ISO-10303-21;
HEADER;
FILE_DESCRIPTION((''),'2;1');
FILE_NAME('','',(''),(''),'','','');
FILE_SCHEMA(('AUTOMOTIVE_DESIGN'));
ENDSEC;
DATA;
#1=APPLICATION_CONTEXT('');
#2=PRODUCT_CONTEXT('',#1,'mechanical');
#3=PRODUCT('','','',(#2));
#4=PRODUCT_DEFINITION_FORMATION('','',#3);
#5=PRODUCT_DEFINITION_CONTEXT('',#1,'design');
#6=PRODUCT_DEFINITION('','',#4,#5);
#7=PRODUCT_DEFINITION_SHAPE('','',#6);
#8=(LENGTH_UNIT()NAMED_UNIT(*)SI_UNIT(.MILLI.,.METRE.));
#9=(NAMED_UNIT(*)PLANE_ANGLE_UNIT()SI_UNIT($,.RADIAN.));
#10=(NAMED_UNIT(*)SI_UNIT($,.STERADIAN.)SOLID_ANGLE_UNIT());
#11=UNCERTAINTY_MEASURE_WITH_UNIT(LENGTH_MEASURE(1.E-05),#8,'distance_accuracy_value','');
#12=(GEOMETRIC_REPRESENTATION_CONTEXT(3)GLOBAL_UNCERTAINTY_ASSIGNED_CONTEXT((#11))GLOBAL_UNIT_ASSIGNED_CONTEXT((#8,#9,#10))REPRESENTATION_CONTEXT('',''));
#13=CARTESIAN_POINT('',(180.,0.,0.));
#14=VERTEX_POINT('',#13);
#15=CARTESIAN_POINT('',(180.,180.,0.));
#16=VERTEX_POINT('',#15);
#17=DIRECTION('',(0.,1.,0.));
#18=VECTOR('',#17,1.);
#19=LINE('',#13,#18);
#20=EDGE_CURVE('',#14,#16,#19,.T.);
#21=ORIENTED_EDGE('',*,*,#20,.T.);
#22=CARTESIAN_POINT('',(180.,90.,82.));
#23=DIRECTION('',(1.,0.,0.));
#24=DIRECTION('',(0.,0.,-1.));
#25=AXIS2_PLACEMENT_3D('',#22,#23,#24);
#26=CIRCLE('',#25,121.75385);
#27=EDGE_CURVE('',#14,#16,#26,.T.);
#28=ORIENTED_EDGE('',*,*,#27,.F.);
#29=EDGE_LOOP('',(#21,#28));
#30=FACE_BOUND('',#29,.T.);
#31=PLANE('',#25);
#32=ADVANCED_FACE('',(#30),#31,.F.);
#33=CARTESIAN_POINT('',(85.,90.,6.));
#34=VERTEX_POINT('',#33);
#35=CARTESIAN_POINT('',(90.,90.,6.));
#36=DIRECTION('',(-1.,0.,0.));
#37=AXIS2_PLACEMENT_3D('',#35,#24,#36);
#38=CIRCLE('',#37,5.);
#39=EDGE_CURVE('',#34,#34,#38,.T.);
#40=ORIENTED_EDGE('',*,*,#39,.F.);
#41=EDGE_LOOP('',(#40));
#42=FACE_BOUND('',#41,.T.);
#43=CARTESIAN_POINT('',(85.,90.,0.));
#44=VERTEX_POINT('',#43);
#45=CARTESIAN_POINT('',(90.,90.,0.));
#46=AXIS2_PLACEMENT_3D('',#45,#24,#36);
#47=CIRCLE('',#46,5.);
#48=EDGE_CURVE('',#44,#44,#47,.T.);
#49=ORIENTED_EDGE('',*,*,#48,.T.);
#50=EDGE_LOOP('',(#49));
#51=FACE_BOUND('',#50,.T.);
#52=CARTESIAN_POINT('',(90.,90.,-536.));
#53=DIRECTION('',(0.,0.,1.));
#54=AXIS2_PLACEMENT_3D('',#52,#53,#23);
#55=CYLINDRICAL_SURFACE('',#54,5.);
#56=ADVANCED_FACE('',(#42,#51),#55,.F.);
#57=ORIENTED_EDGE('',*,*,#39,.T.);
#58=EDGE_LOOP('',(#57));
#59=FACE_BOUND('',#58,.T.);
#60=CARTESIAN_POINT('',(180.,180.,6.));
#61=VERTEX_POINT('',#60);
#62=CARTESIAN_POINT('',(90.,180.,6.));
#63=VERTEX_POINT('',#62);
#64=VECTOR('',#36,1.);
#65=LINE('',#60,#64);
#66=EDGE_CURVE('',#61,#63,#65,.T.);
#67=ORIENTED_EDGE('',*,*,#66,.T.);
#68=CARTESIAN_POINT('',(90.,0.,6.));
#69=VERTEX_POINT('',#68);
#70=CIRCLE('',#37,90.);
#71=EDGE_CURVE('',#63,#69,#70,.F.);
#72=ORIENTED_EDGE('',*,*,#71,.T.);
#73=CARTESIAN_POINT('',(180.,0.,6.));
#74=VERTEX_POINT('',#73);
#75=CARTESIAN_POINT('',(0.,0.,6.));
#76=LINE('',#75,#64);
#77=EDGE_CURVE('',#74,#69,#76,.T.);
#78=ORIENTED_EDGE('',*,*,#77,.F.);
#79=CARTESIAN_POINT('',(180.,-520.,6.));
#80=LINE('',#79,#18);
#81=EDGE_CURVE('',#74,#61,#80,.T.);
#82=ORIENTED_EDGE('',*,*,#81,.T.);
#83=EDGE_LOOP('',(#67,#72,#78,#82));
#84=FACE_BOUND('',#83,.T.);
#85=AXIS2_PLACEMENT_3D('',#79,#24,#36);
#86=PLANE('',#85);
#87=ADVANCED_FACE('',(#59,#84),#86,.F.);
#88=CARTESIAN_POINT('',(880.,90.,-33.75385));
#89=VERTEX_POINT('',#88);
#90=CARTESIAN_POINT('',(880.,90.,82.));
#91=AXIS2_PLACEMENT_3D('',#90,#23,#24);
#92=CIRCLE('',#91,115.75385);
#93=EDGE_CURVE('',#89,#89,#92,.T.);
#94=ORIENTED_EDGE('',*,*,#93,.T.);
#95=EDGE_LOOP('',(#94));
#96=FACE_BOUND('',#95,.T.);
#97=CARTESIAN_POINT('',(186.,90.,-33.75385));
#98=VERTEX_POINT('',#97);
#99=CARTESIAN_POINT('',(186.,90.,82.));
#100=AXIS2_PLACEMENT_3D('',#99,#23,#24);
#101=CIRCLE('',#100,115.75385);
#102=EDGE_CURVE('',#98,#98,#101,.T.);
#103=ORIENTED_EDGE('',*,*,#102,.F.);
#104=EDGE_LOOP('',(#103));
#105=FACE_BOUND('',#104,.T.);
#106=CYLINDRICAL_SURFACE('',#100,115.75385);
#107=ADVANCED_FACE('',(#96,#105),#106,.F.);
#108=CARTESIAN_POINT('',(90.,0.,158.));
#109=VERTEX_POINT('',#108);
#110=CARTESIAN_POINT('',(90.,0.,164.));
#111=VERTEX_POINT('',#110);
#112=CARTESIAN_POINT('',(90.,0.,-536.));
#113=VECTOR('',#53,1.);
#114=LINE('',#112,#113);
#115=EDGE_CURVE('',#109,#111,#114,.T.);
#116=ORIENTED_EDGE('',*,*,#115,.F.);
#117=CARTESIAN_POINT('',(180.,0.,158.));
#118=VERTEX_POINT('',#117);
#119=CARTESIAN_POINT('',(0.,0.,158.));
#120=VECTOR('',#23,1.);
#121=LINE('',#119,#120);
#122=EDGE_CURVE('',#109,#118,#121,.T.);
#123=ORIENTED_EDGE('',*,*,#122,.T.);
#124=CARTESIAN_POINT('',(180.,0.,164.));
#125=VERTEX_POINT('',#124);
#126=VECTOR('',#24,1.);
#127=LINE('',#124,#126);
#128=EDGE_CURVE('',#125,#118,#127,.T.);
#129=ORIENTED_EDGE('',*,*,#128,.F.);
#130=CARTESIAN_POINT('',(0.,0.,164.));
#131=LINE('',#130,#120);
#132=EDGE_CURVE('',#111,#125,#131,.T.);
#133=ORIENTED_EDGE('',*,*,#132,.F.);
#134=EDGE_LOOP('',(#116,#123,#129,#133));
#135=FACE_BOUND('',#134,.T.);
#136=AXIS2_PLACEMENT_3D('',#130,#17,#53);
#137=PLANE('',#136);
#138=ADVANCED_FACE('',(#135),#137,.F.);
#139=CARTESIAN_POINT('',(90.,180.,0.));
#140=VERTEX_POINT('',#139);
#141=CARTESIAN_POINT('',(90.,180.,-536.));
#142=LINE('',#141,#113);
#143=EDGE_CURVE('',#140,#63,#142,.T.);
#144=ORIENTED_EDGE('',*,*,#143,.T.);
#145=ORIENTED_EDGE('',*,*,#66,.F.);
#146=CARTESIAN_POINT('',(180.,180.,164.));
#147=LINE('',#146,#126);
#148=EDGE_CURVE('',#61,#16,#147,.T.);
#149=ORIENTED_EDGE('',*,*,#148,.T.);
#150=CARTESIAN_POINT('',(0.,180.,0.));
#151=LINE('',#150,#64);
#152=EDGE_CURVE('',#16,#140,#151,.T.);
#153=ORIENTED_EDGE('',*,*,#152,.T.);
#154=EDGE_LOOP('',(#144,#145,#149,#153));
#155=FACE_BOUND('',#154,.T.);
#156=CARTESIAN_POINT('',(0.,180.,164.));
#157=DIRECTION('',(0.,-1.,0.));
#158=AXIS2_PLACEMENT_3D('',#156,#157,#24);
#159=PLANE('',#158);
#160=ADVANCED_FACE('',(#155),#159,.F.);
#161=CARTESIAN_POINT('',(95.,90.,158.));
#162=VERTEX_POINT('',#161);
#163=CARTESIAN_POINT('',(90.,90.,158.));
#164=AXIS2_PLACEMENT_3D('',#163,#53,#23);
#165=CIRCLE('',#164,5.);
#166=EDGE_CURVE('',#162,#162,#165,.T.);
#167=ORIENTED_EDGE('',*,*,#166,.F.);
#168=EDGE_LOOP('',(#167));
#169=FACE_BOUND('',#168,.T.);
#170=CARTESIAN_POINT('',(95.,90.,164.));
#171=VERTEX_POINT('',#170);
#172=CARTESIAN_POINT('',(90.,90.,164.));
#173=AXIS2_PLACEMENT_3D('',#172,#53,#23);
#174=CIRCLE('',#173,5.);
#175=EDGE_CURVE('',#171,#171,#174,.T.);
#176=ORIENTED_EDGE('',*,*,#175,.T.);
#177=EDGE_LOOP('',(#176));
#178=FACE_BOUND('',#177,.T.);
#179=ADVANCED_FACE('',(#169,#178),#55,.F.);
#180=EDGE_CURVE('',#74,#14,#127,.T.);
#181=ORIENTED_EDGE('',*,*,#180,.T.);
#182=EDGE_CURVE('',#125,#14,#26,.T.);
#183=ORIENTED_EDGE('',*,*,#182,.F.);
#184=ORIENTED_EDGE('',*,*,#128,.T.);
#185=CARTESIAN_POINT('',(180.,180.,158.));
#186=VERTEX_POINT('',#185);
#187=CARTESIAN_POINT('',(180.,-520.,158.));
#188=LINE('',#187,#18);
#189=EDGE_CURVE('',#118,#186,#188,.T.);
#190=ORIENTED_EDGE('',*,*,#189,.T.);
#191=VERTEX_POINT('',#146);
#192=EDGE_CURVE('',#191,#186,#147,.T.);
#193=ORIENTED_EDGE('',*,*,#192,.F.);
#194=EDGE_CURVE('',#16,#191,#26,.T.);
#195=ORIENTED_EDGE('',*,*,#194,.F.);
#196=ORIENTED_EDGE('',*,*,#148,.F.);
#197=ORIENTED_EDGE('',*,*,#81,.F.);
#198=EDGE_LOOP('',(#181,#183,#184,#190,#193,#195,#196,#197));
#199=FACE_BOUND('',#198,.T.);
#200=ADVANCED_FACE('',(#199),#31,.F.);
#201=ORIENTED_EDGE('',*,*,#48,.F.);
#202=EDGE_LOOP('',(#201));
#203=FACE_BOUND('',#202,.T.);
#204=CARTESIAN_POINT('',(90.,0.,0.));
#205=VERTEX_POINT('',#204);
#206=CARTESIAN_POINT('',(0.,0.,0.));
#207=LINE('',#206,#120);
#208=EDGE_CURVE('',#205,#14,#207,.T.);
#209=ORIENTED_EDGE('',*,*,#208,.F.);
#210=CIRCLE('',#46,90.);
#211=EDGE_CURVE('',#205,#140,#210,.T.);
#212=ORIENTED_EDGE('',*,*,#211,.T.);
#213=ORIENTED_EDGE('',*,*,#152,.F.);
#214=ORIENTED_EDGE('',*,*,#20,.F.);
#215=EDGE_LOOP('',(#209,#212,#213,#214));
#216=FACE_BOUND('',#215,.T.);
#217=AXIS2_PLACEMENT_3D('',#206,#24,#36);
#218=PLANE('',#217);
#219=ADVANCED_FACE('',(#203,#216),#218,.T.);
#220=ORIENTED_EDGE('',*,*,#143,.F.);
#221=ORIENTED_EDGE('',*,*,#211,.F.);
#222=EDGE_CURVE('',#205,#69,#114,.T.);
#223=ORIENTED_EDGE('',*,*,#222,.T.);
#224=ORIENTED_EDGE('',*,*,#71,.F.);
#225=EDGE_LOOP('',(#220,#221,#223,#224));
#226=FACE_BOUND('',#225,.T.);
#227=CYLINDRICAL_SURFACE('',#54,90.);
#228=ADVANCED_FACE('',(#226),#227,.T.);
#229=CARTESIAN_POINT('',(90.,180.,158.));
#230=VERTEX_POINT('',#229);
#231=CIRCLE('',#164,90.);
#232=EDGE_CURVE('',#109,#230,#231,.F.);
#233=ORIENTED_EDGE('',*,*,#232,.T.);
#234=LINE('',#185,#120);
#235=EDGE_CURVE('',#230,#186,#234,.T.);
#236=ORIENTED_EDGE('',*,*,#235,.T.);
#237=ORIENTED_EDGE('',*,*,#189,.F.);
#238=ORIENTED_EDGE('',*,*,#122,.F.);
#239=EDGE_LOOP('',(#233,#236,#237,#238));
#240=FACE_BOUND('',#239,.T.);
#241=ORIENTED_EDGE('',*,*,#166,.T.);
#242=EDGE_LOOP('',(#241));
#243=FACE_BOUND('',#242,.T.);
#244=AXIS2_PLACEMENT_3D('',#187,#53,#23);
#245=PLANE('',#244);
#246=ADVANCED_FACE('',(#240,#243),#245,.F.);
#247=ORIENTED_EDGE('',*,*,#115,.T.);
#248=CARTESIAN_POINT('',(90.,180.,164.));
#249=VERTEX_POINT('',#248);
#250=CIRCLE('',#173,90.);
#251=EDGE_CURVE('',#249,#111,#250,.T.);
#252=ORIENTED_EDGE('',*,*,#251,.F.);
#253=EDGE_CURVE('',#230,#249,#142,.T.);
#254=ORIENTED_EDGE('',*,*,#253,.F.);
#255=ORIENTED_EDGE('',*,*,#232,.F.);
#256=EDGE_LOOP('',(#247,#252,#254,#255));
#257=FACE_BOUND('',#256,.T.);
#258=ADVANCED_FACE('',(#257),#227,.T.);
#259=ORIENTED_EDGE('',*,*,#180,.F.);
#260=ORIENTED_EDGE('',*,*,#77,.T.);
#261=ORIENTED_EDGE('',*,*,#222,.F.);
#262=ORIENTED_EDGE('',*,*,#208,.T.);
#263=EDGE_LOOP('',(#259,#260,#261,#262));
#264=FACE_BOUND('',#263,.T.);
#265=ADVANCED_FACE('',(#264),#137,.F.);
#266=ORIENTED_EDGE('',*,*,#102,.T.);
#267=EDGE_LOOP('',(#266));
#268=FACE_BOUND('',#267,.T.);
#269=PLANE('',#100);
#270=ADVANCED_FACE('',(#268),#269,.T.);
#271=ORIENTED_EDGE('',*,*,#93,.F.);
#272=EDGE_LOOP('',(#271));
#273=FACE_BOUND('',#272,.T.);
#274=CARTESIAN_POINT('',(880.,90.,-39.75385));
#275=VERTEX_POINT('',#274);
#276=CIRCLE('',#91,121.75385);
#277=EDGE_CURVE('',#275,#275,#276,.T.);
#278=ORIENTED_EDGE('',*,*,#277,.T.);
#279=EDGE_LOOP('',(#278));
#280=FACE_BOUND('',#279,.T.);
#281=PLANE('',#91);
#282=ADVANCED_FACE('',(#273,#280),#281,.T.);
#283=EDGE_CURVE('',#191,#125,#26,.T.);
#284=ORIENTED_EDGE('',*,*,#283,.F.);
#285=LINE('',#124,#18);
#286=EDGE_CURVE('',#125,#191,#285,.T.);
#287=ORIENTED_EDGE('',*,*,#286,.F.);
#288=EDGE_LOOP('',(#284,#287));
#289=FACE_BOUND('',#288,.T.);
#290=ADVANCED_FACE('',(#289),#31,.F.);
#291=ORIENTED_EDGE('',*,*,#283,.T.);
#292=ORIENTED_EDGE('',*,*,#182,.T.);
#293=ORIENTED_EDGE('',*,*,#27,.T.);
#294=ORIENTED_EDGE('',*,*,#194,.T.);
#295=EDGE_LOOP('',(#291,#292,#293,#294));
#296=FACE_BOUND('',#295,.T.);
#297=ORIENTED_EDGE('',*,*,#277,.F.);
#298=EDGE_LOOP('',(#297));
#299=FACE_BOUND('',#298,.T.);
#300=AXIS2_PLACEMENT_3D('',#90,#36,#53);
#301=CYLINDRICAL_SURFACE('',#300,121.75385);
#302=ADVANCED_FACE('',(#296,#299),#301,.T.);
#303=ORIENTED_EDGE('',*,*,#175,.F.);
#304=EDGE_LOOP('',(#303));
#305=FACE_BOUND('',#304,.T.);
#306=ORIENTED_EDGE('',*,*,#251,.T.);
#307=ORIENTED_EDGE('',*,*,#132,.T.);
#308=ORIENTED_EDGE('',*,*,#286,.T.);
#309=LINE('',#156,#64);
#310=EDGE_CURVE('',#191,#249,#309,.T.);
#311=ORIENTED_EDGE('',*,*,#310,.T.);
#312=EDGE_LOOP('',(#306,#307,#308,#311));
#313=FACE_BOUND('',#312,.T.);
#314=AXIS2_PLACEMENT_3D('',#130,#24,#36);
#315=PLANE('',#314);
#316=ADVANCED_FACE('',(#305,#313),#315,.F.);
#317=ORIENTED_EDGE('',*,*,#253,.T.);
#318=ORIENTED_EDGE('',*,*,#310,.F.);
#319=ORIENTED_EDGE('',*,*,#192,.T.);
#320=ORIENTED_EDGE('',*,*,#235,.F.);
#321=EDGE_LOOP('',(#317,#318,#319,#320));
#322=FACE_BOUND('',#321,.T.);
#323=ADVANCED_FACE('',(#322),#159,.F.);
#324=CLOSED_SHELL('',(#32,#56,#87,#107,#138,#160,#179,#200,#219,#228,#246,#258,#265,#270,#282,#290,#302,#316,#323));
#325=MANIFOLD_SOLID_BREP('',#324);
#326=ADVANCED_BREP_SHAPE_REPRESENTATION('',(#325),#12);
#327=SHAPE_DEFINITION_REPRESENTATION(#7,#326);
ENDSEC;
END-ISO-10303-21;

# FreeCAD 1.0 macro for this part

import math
import FreeCAD as App
import Part
import Sketcher


def add_polygon(sketch, points):
    """Adds a closed chain of lines whose ends are joined by coincident constraints."""
    first, n = sketch.GeometryCount, len(points)
    for a, b in zip(points, points[1:] + points[:1]):
        sketch.addGeometry(Part.LineSegment(App.Vector(*a, 0), App.Vector(*b, 0)), False)
    for i in range(n):
        sketch.addConstraint(Sketcher.Constraint("Coincident", first + i, 2, first + (i + 1) % n, 1))

doc = App.newDocument("Part")
body = doc.addObject("PartDesign::Body", "Body")

# Sketch on XY plane
sketch1 = doc.addObject("Sketcher::SketchObject", "Sketch")
body.addObject(sketch1)
sketch1.AttachmentSupport = (doc.XY_Plane, [""])
sketch1.MapMode = "FlatFace"
add_polygon(sketch1, [(0, 180), (0, 0), (180, 0), (180, 180)])  # lines 0-3
sketch1.addConstraint(Sketcher.Constraint("Vertical", 0))
sketch1.addConstraint(Sketcher.Constraint("Horizontal", 1))
sketch1.addConstraint(Sketcher.Constraint("Vertical", 2))
sketch1.addConstraint(Sketcher.Constraint("Horizontal", 3))
sketch1.addConstraint(Sketcher.Constraint("Coincident", 0, 2, -1, 1))
sketch1.addConstraint(Sketcher.Constraint("Equal", 3, 0))
sketch1.addConstraint(Sketcher.Constraint("DistanceX", 1, 1, 1, 2, 180.0))
pad1 = doc.addObject("PartDesign::Pad", "Pad")
body.addObject(pad1)
pad1.Profile = sketch1
pad1.Length = 164

# Sketch on YZ plane
sketch2 = doc.addObject("Sketcher::SketchObject", "Sketch001")
body.addObject(sketch2)
sketch2.AttachmentSupport = (doc.YZ_Plane, [""])
sketch2.MapMode = "FlatFace"
sketch2.AttachmentOffset = App.Placement(App.Vector(0, 0, 180), App.Rotation())
sketch2.addGeometry(Part.Circle(App.Vector(90, 82, 0), App.Vector(0, 0, 1), 122), False)
sketch2.addConstraint(Sketcher.Constraint("DistanceX", -1, 1, 0, 3, 90.0))
sketch2.addConstraint(Sketcher.Constraint("DistanceY", -1, 1, 0, 3, 82.0))
sketch2.addConstraint(Sketcher.Constraint("Diameter", 0, 243.5077))
pad2 = doc.addObject("PartDesign::Pad", "Pad001")
body.addObject(pad2)
pad2.Profile = sketch2
pad2.Length = 700

# Sketch on XY plane
sketch3 = doc.addObject("Sketcher::SketchObject", "Sketch002")
body.addObject(sketch3)
sketch3.AttachmentSupport = (doc.XY_Plane, [""])
sketch3.MapMode = "FlatFace"
sketch3.AttachmentOffset = App.Placement(App.Vector(0, 0, 164), App.Rotation())
sketch3.addGeometry(Part.ArcOfCircle(Part.Circle(App.Vector(90, 90, 0), App.Vector(0, 0, 1), 90), math.radians(90), math.radians(180)), False)
sketch3.addGeometry(Part.LineSegment(App.Vector(90, 180, 0), App.Vector(0, 180, 0)), False)
sketch3.addGeometry(Part.LineSegment(App.Vector(0, 180, 0), App.Vector(0, 90, 0)), False)
sketch3.addGeometry(Part.ArcOfCircle(Part.Circle(App.Vector(90, 90, 0), App.Vector(0, 0, 1), 90), math.radians(180), math.radians(270)), False)
sketch3.addGeometry(Part.LineSegment(App.Vector(0, 90, 0), App.Vector(0, 0, 0)), False)
sketch3.addGeometry(Part.LineSegment(App.Vector(0, 0, 0), App.Vector(90, 0, 0)), False)
sketch3.addConstraint(Sketcher.Constraint("Tangent", 0, 1, 1, 1))
sketch3.addConstraint(Sketcher.Constraint("Coincident", 1, 2, 2, 1))
sketch3.addConstraint(Sketcher.Constraint("Tangent", 2, 2, 0, 2))
sketch3.addConstraint(Sketcher.Constraint("Tangent", 3, 1, 4, 1))
sketch3.addConstraint(Sketcher.Constraint("Coincident", 4, 2, 5, 1))
sketch3.addConstraint(Sketcher.Constraint("Tangent", 5, 2, 3, 2))
sketch3.addConstraint(Sketcher.Constraint("Horizontal", 1))
sketch3.addConstraint(Sketcher.Constraint("Vertical", 2))
sketch3.addConstraint(Sketcher.Constraint("Vertical", 4))
sketch3.addConstraint(Sketcher.Constraint("Horizontal", 5))
sketch3.addConstraint(Sketcher.Constraint("Coincident", 4, 2, -1, 1))
sketch3.addConstraint(Sketcher.Constraint("Coincident", 3, 3, 0, 3))
sketch3.addConstraint(Sketcher.Constraint("Equal", 0, 3))
sketch3.addConstraint(Sketcher.Constraint("Radius", 0, 90.0))
pocket1 = doc.addObject("PartDesign::Pocket", "Pocket")
body.addObject(pocket1)
pocket1.Profile = sketch3
pocket1.Length = 700

# Sketch on XZ plane
sketch4 = doc.addObject("Sketcher::SketchObject", "Sketch003")
body.addObject(sketch4)
sketch4.AttachmentSupport = (doc.XZ_Plane, [""])
sketch4.MapMode = "FlatFace"
sketch4.AttachmentOffset = App.Placement(App.Vector(0, 0, -180), App.Rotation())
add_polygon(sketch4, [(0, 6), (0, 158), (180, 158), (180, 6)])  # lines 0-3
sketch4.addConstraint(Sketcher.Constraint("Vertical", 0))
sketch4.addConstraint(Sketcher.Constraint("Horizontal", 1))
sketch4.addConstraint(Sketcher.Constraint("Vertical", 2))
sketch4.addConstraint(Sketcher.Constraint("Horizontal", 3))
sketch4.addConstraint(Sketcher.Constraint("PointOnObject", 0, 2, -2))
sketch4.addConstraint(Sketcher.Constraint("DistanceX", 1, 1, 1, 2, 180.0))
sketch4.addConstraint(Sketcher.Constraint("DistanceY", 0, 1, 0, 2, 152.0))
sketch4.addConstraint(Sketcher.Constraint("DistanceY", -1, 1, 0, 2, 158.0))
pocket2 = doc.addObject("PartDesign::Pocket", "Pocket001")
body.addObject(pocket2)
pocket2.Profile = sketch4
pocket2.Length = 700
pocket2.Reversed = True

# Sketch on XY plane
sketch5 = doc.addObject("Sketcher::SketchObject", "Sketch004")
body.addObject(sketch5)
sketch5.AttachmentSupport = (doc.XY_Plane, [""])
sketch5.MapMode = "FlatFace"
sketch5.AttachmentOffset = App.Placement(App.Vector(0, 0, 164), App.Rotation())
sketch5.addGeometry(Part.Circle(App.Vector(90, 90, 0), App.Vector(0, 0, 1), 5), False)
sketch5.addConstraint(Sketcher.Constraint("Diameter", 0, 10.0))
sketch5.addConstraint(Sketcher.Constraint("DistanceX", -1, 1, 0, 3, 90.0))
sketch5.addConstraint(Sketcher.Constraint("DistanceY", -1, 1, 0, 3, 90.0))
pocket3 = doc.addObject("PartDesign::Pocket", "Pocket002")
body.addObject(pocket3)
pocket3.Profile = sketch5
pocket3.Length = 700

# Sketch on YZ plane
sketch6 = doc.addObject("Sketcher::SketchObject", "Sketch005")
body.addObject(sketch6)
sketch6.AttachmentSupport = (doc.YZ_Plane, [""])
sketch6.MapMode = "FlatFace"
sketch6.AttachmentOffset = App.Placement(App.Vector(0, 0, 880), App.Rotation())
sketch6.addGeometry(Part.Circle(App.Vector(90, 82, 0), App.Vector(0, 0, 1), 116), False)
sketch6.addConstraint(Sketcher.Constraint("DistanceX", -1, 1, 0, 3, 90.0))
sketch6.addConstraint(Sketcher.Constraint("DistanceY", -1, 1, 0, 3, 82.0))
sketch6.addConstraint(Sketcher.Constraint("Diameter", 0, 231.5077))
pocket4 = doc.addObject("PartDesign::Pocket", "Pocket003")
body.addObject(pocket4)
pocket4.Profile = sketch6
pocket4.Length = 694

doc.recompute()
